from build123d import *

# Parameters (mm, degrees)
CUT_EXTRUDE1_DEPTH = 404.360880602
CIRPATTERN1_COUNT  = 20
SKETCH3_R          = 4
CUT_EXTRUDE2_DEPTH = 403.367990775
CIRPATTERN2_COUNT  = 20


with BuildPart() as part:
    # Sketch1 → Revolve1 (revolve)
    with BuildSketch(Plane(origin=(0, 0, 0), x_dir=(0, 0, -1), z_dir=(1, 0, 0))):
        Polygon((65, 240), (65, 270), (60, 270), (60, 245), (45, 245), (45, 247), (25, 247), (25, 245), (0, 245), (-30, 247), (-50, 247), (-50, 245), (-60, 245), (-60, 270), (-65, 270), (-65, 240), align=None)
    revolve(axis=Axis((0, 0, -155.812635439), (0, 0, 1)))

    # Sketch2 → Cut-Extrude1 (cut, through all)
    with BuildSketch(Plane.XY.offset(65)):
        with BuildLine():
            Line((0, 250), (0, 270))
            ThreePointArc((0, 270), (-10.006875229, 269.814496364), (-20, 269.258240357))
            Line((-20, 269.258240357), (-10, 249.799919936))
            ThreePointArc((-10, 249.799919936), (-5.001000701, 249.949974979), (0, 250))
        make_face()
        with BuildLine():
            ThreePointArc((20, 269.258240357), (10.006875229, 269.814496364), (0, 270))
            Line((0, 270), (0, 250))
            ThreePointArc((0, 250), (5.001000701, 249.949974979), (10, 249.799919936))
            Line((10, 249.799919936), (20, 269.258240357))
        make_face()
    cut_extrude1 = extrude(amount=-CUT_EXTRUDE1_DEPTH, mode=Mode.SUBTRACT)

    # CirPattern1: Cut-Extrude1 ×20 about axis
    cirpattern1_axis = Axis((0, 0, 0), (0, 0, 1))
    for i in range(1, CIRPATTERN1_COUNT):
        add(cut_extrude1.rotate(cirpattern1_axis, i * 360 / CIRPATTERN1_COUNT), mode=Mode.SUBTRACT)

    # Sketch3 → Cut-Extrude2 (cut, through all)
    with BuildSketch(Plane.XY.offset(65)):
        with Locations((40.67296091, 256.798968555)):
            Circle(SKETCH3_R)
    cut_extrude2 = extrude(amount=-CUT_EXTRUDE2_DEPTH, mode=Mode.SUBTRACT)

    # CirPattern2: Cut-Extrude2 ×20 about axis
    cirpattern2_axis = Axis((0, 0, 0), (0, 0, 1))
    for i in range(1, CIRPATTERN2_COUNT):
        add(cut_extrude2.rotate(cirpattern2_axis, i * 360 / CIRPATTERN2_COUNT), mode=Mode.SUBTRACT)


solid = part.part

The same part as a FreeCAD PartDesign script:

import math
import FreeCAD as App
import Part
import Sketcher
from FreeCAD import Vector
Q = App.Units.Quantity


def add_polygon(sketch, points):
    """Adds a closed chain of lines whose ends are joined by coincident constraints."""
    first, n = sketch.GeometryCount, len(points)
    for a, b in zip(points, points[1:] + points[:1]):
        sketch.addGeometry(Part.LineSegment(App.Vector(*a, 0), App.Vector(*b, 0)), False)
    for i in range(n):
        sketch.addConstraint(Sketcher.Constraint("Coincident", first + i, 2, first + (i + 1) % n, 1))

doc = App.newDocument("Part")
body = doc.addObject("PartDesign::Body", "Body")

# Sketch on YZ plane
sketch1 = doc.addObject("Sketcher::SketchObject", "Sketch")
body.addObject(sketch1)
sketch1.AttachmentSupport = (doc.YZ_Plane, [""])
sketch1.MapMode = "FlatFace"
add_polygon(sketch1, [(240, -65), (270, -65), (270, -60), (245, -60), (245, -45), (247, -45), (247, -25), (245, -25), (245, 0), (247, 30), (247, 50), (245, 50), (245, 60), (270, 60), (270, 65), (240, 65)])  # lines 0-15
sketch1.addConstraint([
    Sketcher.Constraint("Horizontal", 0),
    Sketcher.Constraint("Vertical", 1),
    Sketcher.Constraint("Horizontal", 2),
    Sketcher.Constraint("Vertical", 3),
    Sketcher.Constraint("Horizontal", 4),
    Sketcher.Constraint("Vertical", 5),
    Sketcher.Constraint("Horizontal", 6),
    Sketcher.Constraint("Vertical", 7),
    Sketcher.Constraint("Vertical", 9),
    Sketcher.Constraint("Horizontal", 10),
    Sketcher.Constraint("Vertical", 11),
    Sketcher.Constraint("Horizontal", 12),
    Sketcher.Constraint("Vertical", 13),
    Sketcher.Constraint("Horizontal", 14),
    Sketcher.Constraint("Vertical", 15),
    Sketcher.Constraint("Symmetric", 2, 2, 11, 2, -1),
    Sketcher.Constraint("Symmetric", 0, 2, 13, 2, -1),
    Sketcher.Constraint("PointOnObject", 7, 2, -1),
    Sketcher.Constraint("Vertical", 3, 2, 6, 2),
    Sketcher.Constraint("Vertical", 5, 2, 8, 2),
    Sketcher.Constraint("Equal", 12, 7),
    Sketcher.Constraint("Equal", 5, 9),
    Sketcher.Constraint("DistanceX", 0, 1, 0, 2, Q("30 mm")),
    Sketcher.Constraint("DistanceX", 2, 2, 2, 1, Q("25 mm")),
    Sketcher.Constraint("DistanceX", 4, 1, 4, 2, Q("2 mm")),
    Sketcher.Constraint("DistanceY", 1, 1, 1, 2, Q("5 mm")),
    Sketcher.Constraint("DistanceY", 3, 1, 3, 2, Q("15 mm")),
    Sketcher.Constraint("DistanceY", 5, 1, 5, 2, Q("20 mm")),
    Sketcher.Constraint("DistanceY", 11, 1, 11, 2, Q("10 mm")),
    Sketcher.Constraint("DistanceX", -1, 1, 0, 2, Q("270 mm")),
])
revolution = doc.addObject("PartDesign::Revolution", "Revolution")
body.addObject(revolution)
revolution.Profile = sketch1
revolution.ReferenceAxis = (sketch1, ["V_Axis"])
revolution.Angle = 360

# Sketch on XY plane
sketch2 = doc.addObject("Sketcher::SketchObject", "Sketch001")
body.addObject(sketch2)
sketch2.AttachmentSupport = (doc.XY_Plane, [""])
sketch2.MapMode = "FlatFace"
sketch2.AttachmentOffset = App.Placement(Vector(0, 0, 65), App.Rotation())
sketch2.addGeometry([
    Part.ArcOfCircle(Part.Circle(Vector(0, 0, 0), Vector(0, 0, 1), 270), math.radians(90), math.radians(94.25)),  # 0
    Part.LineSegment(Vector(-20, 269, 0), Vector(-10, 250, 0)),  # 1
    Part.ArcOfCircle(Part.Circle(Vector(0, 0, 0), Vector(0, 0, 1), 250), math.radians(90), math.radians(92.29)),  # 2
    Part.ArcOfCircle(Part.Circle(Vector(0, 0, 0), Vector(0, 0, 1), 250), math.radians(87.71), math.radians(90)),  # 3
    Part.LineSegment(Vector(10, 250, 0), Vector(20, 269, 0)),  # 4
    Part.ArcOfCircle(Part.Circle(Vector(0, 0, 0), Vector(0, 0, 1), 270), math.radians(85.75), math.radians(90)),  # 5
], False)
sketch2.addConstraint([
    Sketcher.Constraint("Coincident", 0, 2, 1, 1),
    Sketcher.Constraint("Coincident", 1, 2, 2, 2),
    Sketcher.Constraint("Tangent", 2, 1, 3, 2),
    Sketcher.Constraint("Coincident", 3, 1, 4, 1),
    Sketcher.Constraint("Coincident", 4, 2, 5, 1),
    Sketcher.Constraint("Tangent", 5, 2, 0, 1),
    Sketcher.Constraint("Coincident", 0, 3, -1, 1),
    Sketcher.Constraint("Coincident", 2, 3, -1, 1),
    Sketcher.Constraint("Equal", 2, 3),
    Sketcher.Constraint("Equal", 0, 5),
    Sketcher.Constraint("PointOnObject", 2, 1, -2),
    Sketcher.Constraint("PointOnObject", 5, 2, -2),
    Sketcher.Constraint("Horizontal", 1, 2, 3, 1),
    Sketcher.Constraint("Horizontal", 0, 2, 4, 2),
    Sketcher.Constraint("Radius", 0, Q("270 mm")),
    Sketcher.Constraint("Radius", 2, Q("250 mm")),
    Sketcher.Constraint("DistanceX", 0, 2, -1, 1, Q("20 mm")),
    Sketcher.Constraint("DistanceX", 1, 2, -1, 1, Q("10 mm")),
])
pocket1 = doc.addObject("PartDesign::Pocket", "Pocket")
body.addObject(pocket1)
pocket1.Profile = sketch2
pocket1.Type = "ThroughAll"
doc.recompute()

polarpattern = doc.addObject("PartDesign::PolarPattern", "PolarPattern")
body.addObject(polarpattern)
polarpattern.Originals = [pocket1]
polarpattern.Axis = (doc.Z_Axis, [""])
polarpattern.Angle = 360
polarpattern.Occurrences = 20
body.Tip = polarpattern

# Sketch on XY plane
sketch3 = doc.addObject("Sketcher::SketchObject", "Sketch002")
body.addObject(sketch3)
sketch3.AttachmentSupport = (doc.XY_Plane, [""])
sketch3.MapMode = "FlatFace"
sketch3.AttachmentOffset = App.Placement(Vector(0, 0, 65), App.Rotation())
sketch3.addGeometry(Part.Circle(Vector(40.7, 256.8, 0), Vector(0, 0, 1), 4), False)
sketch3.addConstraint([
    Sketcher.Constraint("Diameter", 0, Q("8 mm")),
    Sketcher.Constraint("DistanceX", -1, 1, 0, 3, Q("40.672961 mm")),
    Sketcher.Constraint("DistanceY", -1, 1, 0, 3, Q("256.798969 mm")),
])
pocket2 = doc.addObject("PartDesign::Pocket", "Pocket001")
body.addObject(pocket2)
pocket2.Profile = sketch3
pocket2.Type = "ThroughAll"
doc.recompute()

polarpattern2 = doc.addObject("PartDesign::PolarPattern", "PolarPattern001")
body.addObject(polarpattern2)
polarpattern2.Originals = [pocket2]
polarpattern2.Axis = (doc.Z_Axis, [""])
polarpattern2.Angle = 360
polarpattern2.Occurrences = 20
body.Tip = polarpattern2

doc.recompute()
